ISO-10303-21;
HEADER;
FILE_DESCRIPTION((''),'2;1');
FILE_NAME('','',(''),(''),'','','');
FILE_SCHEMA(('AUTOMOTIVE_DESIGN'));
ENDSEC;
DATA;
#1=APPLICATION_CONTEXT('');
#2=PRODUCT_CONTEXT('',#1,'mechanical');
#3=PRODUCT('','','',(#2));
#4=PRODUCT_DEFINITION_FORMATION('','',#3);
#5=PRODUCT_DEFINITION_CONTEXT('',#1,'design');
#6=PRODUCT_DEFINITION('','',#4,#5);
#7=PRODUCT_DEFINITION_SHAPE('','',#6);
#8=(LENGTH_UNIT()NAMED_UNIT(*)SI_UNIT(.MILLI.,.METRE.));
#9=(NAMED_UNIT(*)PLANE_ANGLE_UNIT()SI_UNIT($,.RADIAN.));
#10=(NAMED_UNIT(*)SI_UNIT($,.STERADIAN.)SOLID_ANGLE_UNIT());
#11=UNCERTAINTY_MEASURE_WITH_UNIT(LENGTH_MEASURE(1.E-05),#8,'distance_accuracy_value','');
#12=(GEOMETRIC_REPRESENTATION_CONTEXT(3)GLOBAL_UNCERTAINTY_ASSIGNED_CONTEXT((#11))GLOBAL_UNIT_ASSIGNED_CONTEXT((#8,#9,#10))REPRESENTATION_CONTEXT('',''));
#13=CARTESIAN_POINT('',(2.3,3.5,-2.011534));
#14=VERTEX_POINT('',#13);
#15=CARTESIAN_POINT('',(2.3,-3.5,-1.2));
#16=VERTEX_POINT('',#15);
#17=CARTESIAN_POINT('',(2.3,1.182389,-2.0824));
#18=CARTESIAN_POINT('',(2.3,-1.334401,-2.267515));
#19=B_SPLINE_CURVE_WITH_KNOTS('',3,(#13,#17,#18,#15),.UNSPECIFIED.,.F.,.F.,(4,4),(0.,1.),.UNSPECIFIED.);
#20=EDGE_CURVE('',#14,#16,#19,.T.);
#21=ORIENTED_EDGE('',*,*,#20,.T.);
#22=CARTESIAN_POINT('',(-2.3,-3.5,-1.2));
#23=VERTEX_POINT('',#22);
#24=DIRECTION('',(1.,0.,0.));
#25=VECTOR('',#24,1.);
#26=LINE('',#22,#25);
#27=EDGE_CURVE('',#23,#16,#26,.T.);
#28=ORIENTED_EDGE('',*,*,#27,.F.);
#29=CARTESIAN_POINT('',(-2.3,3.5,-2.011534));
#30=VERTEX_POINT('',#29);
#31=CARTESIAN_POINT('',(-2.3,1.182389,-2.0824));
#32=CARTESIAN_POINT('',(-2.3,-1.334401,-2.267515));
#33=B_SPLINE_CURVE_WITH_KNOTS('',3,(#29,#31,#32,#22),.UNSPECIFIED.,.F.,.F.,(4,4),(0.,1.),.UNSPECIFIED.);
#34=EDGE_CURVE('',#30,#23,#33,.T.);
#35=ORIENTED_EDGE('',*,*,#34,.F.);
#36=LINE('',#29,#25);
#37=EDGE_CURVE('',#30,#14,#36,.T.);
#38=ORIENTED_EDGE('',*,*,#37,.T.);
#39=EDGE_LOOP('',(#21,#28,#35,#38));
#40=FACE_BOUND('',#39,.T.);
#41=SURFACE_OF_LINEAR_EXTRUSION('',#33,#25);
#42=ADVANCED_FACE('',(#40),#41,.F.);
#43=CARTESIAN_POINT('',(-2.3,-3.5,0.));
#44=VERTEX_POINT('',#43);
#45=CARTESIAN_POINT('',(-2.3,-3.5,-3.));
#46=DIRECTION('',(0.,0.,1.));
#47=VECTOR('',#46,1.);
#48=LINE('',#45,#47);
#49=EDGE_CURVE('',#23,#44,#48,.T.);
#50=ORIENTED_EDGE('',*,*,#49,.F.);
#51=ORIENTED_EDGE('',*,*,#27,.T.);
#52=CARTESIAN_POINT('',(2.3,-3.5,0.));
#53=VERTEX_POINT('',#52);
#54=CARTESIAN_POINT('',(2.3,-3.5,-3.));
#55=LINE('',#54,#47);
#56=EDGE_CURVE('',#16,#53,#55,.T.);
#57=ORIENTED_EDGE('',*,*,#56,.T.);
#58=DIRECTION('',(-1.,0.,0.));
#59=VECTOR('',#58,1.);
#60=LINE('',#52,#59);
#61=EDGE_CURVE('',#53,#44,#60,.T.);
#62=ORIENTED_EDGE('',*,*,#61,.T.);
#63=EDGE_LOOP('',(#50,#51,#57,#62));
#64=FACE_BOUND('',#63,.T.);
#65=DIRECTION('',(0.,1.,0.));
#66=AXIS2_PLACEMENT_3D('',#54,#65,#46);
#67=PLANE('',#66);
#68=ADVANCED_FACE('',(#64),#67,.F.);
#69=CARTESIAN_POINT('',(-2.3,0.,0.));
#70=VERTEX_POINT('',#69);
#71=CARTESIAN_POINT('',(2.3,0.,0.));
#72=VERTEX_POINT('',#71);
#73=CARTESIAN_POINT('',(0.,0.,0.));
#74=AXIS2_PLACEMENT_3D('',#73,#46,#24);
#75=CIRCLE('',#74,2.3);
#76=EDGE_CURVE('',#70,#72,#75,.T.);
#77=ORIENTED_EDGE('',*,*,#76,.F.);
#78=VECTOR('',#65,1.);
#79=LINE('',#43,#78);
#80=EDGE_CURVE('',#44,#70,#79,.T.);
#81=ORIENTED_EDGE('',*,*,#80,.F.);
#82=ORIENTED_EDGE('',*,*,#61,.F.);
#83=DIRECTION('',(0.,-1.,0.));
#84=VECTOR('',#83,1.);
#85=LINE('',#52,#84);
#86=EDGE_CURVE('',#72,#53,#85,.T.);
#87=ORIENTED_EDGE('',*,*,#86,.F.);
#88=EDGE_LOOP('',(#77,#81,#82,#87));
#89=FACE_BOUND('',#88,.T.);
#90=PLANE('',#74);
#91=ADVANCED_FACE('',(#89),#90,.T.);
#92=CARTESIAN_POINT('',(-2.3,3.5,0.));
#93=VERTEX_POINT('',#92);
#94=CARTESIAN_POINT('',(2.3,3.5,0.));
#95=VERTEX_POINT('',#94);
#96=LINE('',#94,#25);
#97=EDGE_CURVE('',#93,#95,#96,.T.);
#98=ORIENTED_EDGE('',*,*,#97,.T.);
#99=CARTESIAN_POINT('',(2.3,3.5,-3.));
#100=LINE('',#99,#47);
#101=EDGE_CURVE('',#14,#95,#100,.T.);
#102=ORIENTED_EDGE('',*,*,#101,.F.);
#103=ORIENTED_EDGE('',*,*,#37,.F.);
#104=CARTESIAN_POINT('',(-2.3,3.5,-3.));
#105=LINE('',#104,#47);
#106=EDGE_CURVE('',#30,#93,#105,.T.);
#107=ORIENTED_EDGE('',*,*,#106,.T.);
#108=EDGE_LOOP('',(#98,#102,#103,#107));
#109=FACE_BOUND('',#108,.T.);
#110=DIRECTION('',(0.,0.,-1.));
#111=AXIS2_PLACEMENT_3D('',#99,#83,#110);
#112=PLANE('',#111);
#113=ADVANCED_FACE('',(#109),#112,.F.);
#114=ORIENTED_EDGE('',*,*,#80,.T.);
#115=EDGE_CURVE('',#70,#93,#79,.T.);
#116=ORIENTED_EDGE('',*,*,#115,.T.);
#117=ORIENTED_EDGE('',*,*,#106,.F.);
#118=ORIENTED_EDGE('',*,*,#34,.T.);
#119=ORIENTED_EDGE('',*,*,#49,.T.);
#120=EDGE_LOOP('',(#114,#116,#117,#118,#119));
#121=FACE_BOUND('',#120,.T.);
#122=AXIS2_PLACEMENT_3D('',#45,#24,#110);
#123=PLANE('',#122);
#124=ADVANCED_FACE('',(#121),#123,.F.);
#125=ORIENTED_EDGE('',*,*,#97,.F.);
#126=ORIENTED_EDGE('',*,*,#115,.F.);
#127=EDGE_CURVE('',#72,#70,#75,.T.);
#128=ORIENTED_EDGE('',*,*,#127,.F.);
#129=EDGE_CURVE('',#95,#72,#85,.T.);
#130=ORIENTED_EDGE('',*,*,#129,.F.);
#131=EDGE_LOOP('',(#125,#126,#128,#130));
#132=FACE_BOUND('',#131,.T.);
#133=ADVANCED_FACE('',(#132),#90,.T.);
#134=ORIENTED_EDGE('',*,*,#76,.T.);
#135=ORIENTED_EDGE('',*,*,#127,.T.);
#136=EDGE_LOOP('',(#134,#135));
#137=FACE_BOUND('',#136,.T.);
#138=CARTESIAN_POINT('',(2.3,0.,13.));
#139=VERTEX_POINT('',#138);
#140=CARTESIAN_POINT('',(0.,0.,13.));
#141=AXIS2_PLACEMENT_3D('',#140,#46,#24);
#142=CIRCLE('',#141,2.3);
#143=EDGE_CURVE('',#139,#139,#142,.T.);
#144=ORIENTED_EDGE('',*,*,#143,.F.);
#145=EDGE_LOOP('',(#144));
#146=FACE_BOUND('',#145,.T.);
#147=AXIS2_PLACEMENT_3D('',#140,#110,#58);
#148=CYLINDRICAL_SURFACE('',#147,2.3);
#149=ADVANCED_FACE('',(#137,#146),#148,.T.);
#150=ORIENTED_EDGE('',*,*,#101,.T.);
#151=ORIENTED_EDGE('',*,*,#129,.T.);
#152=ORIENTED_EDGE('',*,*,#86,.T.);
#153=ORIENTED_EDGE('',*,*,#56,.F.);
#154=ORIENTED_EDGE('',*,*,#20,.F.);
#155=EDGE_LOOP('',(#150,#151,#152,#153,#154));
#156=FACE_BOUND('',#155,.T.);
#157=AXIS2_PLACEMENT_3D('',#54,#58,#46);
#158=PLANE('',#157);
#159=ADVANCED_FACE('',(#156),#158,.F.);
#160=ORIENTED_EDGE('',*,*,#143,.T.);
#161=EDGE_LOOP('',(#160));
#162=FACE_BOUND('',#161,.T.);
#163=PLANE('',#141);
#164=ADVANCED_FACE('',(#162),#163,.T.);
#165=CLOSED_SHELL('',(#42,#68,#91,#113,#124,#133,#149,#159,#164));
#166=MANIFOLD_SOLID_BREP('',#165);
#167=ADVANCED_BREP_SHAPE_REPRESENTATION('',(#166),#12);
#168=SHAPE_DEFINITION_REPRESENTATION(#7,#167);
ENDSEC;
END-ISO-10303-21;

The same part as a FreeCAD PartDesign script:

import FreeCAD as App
import Part
import Sketcher
Q = App.Units.Quantity


def add_polygon(sketch, points):
    """Adds a closed chain of lines whose ends are joined by coincident constraints."""
    first, n = sketch.GeometryCount, len(points)
    for a, b in zip(points, points[1:] + points[:1]):
        sketch.addGeometry(Part.LineSegment(App.Vector(*a, 0), App.Vector(*b, 0)), False)
    for i in range(n):
        sketch.addConstraint(Sketcher.Constraint("Coincident", first + i, 2, first + (i + 1) % n, 1))

doc = App.newDocument("Part")
params = doc.addObject("Spreadsheet::Sheet", "Params")
for row, (alias, value) in enumerate([
    ("sketch1_diameter", "4.6 mm"),
    ("pad1_length", "13 mm"),
    ("sketch2_height", "7 mm"),
    ("sketch2_width", "4.6 mm"),
    ("pad2_length", "3 mm"),
    ("sketch3_height", "1.8 mm"),
    ("pocket1_length", "4.6 mm"),
], start=1):
    params.set(f"A{row}", alias)
    params.set(f"B{row}", "=" + value)
    params.setAlias(f"B{row}", alias)

body = doc.addObject("PartDesign::Body", "Body")

# Sketch on XY plane
sketch1 = body.newObject("Sketcher::SketchObject", "Sketch")
sketch1.AttachmentSupport = (doc.getObject("XY_Plane"), [""])
sketch1.MapMode = "FlatFace"
sketch1.addGeometry(Part.Circle(App.Vector(0, 0, 0), App.Vector(0, 0, 1), 2.3), False)
sketch1.addConstraint(Sketcher.Constraint("Coincident", 0, 3, -1, 1))
sketch1.addConstraint(Sketcher.Constraint("Diameter", 0, Q("4.6 mm")))
sketch1.setExpression("Constraints[1]", "Params.sketch1_diameter")
pad1 = body.newObject("PartDesign::Pad", "Pad")
pad1.Profile = sketch1
pad1.setExpression("Length", "Params.pad1_length")

# Sketch on XY plane
sketch2 = body.newObject("Sketcher::SketchObject", "Sketch001")
sketch2.AttachmentSupport = (doc.getObject("XY_Plane"), [""])
sketch2.MapMode = "FlatFace"
add_polygon(sketch2, [(2.3, 3.5), (2.3, -3.5), (-2.3, -3.5), (-2.3, 3.5)])  # lines 0-3
sketch2.addConstraint(Sketcher.Constraint("Vertical", 0))
sketch2.addConstraint(Sketcher.Constraint("Horizontal", 1))
sketch2.addConstraint(Sketcher.Constraint("Vertical", 2))
sketch2.addConstraint(Sketcher.Constraint("Horizontal", 3))
sketch2.addConstraint(Sketcher.Constraint("Symmetric", 0, 2, 2, 2, -1, 1))
sketch2.addConstraint(Sketcher.Constraint("DistanceY", 0, 2, 0, 1, Q("7 mm")))
sketch2.addConstraint(Sketcher.Constraint("DistanceX", 1, 2, 1, 1, Q("4.6 mm")))
sketch2.setExpression("Constraints[9]", "Params.sketch2_height")
sketch2.setExpression("Constraints[10]", "Params.sketch2_width")
pad2 = body.newObject("PartDesign::Pad", "Pad001")
pad2.Profile = sketch2
pad2.setExpression("Length", "Params.pad2_length")
pad2.Reversed = True

# Sketch on YZ plane
sketch3 = body.newObject("Sketcher::SketchObject", "Sketch002")
sketch3.AttachmentSupport = (doc.getObject("YZ_Plane"), [""])
sketch3.MapMode = "FlatFace"
sketch3.AttachmentOffset = App.Placement(App.Vector(0, 0, 2.3), App.Rotation())
sketch3.addGeometry(Part.LineSegment(App.Vector(-3.5, -1.2, 0), App.Vector(-3.5, -3, 0)), False)
sketch3.addGeometry(Part.LineSegment(App.Vector(-3.5, -3, 0), App.Vector(3.5, -3, 0)), False)
sketch3.addGeometry(Part.LineSegment(App.Vector(3.5, -3, 0), App.Vector(3.5, -2.011534, 0)), False)
sketch3.addGeometry(Part.BSplineCurve([App.Vector(-3.5, -1.2, 0), App.Vector(-1.334401, -2.267515, 0), App.Vector(1.182389, -2.0824, 0), App.Vector(3.5, -2.011534, 0)], [4, 4], [0, 1], False, 3, [1, 1, 1, 1], False), False)
sketch3.addConstraint(Sketcher.Constraint("Block", 3))
sketch3.addConstraint(Sketcher.Constraint("Coincident", 0, 2, 1, 1))
sketch3.addConstraint(Sketcher.Constraint("Coincident", 1, 2, 2, 1))
sketch3.addConstraint(Sketcher.Constraint("Coincident", 2, 2, 3, 2))
sketch3.addConstraint(Sketcher.Constraint("Coincident", 3, 1, 0, 1))
sketch3.addConstraint(Sketcher.Constraint("Vertical", 0))
sketch3.addConstraint(Sketcher.Constraint("Horizontal", 1))
sketch3.addConstraint(Sketcher.Constraint("Vertical", 2))
sketch3.addConstraint(Sketcher.Constraint("DistanceY", 0, 2, 0, 1, Q("1.8 mm")))
sketch3.setExpression("Constraints[8]", "Params.sketch3_height")
pocket1 = body.newObject("PartDesign::Pocket", "Pocket")
pocket1.Profile = sketch3
pocket1.setExpression("Length", "Params.pocket1_length")

doc.recompute()
